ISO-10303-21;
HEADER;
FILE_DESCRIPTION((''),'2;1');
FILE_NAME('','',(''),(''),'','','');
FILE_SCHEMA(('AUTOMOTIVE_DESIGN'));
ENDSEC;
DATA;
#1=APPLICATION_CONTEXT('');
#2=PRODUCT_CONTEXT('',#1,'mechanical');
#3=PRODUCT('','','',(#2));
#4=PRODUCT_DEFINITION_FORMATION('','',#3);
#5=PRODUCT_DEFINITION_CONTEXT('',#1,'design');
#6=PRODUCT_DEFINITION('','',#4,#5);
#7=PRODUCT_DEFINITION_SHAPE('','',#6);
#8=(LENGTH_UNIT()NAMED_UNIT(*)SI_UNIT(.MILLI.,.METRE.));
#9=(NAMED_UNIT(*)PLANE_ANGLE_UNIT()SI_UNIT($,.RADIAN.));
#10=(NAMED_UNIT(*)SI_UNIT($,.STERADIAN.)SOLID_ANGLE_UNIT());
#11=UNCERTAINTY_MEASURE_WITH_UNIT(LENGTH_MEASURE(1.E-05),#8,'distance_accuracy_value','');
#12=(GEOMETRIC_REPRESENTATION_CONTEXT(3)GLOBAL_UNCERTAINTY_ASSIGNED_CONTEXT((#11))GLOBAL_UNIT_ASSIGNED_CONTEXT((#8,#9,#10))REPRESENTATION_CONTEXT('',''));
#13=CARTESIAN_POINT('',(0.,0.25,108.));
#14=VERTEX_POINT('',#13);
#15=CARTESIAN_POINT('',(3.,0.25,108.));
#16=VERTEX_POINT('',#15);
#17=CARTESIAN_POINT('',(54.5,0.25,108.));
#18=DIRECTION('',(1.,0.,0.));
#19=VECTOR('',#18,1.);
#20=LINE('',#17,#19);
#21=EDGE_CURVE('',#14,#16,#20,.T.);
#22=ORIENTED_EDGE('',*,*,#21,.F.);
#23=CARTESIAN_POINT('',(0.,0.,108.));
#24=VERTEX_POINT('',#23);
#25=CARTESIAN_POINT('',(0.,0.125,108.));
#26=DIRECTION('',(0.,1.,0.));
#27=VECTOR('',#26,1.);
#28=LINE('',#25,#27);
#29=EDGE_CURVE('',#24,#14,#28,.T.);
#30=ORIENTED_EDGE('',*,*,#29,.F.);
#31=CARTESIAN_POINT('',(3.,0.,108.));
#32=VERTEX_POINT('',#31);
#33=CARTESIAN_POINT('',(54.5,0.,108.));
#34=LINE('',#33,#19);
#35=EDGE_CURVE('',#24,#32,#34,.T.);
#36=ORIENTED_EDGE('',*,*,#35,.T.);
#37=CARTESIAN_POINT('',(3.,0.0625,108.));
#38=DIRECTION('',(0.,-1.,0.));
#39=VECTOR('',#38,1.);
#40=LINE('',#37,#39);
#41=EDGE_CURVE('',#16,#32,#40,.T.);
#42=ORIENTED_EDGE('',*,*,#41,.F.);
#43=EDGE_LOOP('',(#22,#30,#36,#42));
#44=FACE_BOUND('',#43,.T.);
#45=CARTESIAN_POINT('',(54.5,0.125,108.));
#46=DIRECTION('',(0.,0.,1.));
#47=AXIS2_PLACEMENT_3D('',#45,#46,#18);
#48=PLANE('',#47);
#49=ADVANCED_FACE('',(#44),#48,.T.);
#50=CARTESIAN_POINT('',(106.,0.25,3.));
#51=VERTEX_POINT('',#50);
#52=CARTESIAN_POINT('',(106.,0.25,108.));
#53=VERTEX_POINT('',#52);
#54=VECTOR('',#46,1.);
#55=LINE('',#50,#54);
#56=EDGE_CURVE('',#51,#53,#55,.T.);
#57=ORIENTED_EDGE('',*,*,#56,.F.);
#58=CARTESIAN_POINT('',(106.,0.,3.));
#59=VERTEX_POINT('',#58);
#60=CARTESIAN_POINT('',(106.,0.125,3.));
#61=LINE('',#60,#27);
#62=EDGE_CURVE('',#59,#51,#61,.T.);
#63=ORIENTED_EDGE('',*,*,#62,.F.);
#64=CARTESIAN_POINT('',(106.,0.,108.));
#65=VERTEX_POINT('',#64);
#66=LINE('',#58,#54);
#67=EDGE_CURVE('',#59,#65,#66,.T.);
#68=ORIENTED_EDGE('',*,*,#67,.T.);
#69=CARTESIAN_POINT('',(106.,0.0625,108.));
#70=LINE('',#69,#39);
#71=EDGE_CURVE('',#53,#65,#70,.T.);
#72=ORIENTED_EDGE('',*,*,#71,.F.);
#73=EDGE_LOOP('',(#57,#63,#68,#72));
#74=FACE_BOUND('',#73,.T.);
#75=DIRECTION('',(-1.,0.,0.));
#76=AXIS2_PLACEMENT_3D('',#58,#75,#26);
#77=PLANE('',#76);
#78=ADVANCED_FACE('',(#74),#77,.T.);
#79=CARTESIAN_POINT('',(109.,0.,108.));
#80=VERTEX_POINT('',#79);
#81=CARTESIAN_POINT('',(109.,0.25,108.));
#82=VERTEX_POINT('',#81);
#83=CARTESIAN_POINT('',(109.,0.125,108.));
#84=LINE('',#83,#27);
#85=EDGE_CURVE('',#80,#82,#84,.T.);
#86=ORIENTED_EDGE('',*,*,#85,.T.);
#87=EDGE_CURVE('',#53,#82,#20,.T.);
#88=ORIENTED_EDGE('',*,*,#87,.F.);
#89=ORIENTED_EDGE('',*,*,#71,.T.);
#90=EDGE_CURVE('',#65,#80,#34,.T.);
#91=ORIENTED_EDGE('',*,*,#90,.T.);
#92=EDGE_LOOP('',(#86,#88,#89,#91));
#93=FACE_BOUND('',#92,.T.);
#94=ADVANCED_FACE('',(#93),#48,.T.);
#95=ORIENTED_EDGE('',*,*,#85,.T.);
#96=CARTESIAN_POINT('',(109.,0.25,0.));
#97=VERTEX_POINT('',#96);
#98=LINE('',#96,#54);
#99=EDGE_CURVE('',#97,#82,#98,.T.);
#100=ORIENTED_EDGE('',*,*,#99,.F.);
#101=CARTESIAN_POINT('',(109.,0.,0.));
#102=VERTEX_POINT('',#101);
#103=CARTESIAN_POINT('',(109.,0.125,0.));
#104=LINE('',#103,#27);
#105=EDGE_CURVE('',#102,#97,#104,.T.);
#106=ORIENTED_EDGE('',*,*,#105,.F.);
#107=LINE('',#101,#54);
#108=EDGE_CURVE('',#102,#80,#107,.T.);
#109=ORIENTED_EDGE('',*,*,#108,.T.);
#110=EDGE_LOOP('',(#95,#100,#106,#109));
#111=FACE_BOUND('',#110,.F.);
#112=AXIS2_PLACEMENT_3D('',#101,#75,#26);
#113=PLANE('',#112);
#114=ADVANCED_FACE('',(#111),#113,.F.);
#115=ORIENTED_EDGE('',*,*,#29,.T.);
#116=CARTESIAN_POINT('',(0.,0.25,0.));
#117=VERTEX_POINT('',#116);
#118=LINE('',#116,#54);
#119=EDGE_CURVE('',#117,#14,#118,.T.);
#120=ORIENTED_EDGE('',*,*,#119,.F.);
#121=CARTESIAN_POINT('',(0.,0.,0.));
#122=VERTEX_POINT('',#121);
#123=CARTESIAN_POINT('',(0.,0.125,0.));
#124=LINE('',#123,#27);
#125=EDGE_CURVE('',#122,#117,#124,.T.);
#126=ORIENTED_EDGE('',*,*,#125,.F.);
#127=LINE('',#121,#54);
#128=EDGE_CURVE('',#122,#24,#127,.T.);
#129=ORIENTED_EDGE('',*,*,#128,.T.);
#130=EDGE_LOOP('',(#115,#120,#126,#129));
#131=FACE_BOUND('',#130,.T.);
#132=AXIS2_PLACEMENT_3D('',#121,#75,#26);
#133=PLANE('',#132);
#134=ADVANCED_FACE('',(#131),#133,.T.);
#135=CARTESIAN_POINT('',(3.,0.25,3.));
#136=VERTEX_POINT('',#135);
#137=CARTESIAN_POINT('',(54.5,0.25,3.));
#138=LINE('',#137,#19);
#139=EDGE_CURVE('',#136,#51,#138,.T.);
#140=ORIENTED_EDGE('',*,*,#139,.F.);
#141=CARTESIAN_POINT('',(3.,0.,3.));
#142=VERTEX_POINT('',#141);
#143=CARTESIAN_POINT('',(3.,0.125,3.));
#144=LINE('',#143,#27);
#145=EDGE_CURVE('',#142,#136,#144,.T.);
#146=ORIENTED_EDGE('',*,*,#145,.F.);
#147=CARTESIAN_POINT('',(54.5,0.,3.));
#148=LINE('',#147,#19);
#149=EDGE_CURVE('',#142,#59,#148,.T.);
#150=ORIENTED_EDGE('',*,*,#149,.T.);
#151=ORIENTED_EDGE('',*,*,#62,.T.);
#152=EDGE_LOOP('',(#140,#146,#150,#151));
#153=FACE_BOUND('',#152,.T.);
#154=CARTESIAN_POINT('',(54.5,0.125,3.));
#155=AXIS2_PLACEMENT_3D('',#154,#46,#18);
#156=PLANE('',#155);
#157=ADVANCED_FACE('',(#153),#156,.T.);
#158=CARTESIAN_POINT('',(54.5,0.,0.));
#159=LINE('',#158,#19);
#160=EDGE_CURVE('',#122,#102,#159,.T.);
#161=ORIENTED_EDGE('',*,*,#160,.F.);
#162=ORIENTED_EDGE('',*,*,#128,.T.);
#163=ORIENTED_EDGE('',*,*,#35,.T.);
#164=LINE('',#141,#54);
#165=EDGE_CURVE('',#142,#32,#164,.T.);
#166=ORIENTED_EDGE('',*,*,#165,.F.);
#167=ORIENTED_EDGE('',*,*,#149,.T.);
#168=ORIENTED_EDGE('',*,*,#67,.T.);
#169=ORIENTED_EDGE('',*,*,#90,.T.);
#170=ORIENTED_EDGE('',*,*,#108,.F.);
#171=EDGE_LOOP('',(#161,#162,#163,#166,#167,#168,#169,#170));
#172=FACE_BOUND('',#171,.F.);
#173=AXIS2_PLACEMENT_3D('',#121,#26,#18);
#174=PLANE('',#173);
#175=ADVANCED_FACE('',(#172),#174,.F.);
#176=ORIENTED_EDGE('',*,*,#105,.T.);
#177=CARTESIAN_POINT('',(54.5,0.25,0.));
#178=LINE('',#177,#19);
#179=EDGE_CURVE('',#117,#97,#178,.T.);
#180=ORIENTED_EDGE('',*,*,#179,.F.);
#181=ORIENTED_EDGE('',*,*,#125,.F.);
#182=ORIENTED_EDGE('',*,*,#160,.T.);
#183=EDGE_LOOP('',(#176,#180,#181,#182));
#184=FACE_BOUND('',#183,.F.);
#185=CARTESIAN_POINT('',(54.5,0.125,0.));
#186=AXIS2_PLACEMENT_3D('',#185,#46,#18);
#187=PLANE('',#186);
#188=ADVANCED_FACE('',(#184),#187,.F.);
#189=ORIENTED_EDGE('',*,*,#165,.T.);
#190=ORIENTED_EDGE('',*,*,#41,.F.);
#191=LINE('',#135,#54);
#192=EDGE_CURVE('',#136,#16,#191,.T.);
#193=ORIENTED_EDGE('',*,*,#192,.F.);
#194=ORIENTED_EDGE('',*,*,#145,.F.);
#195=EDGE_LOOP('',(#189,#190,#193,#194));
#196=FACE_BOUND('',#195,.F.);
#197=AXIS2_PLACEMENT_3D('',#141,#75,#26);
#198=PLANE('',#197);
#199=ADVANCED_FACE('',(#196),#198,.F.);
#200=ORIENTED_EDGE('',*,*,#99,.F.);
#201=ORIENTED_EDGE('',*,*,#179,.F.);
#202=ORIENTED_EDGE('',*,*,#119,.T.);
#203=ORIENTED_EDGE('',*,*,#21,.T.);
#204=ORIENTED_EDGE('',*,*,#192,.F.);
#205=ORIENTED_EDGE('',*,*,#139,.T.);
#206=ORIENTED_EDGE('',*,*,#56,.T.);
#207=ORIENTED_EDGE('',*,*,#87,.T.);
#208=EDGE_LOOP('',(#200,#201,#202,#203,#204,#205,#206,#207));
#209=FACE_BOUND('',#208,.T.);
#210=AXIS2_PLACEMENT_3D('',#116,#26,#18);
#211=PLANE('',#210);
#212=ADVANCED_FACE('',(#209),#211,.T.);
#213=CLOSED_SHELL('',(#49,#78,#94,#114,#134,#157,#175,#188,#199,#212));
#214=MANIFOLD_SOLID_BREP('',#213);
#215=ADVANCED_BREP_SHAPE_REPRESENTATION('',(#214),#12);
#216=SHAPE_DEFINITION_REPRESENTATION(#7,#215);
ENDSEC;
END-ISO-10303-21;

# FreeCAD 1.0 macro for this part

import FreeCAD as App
import Part
import Sketcher


def add_polygon(sketch, points):
    """Adds a closed chain of lines whose ends are joined by coincident constraints."""
    first, n = sketch.GeometryCount, len(points)
    for a, b in zip(points, points[1:] + points[:1]):
        sketch.addGeometry(Part.LineSegment(App.Vector(*a, 0), App.Vector(*b, 0)), False)
    for i in range(n):
        sketch.addConstraint(Sketcher.Constraint("Coincident", first + i, 2, first + (i + 1) % n, 1))

doc = App.newDocument("Part")
body = doc.addObject("PartDesign::Body", "Body")

sketch1 = body.newObject("Sketcher::SketchObject", "Sketch")
sketch1.AttachmentSupport = (doc.getObject("XY_Plane"), [""])
sketch1.MapMode = "FlatFace"
sketch1.AttachmentOffset = App.Placement(App.Vector(0, 0, 3), App.Rotation())
add_polygon(sketch1, [(3, 0.25), (3, 0), (106, 0), (106, 0.25)])
sketch1.addConstraint(Sketcher.Constraint("Vertical", 0))
sketch1.addConstraint(Sketcher.Constraint("Horizontal", 1))
sketch1.addConstraint(Sketcher.Constraint("Vertical", 2))
sketch1.addConstraint(Sketcher.Constraint("Horizontal", 3))
sketch1.addConstraint(Sketcher.Constraint("PointOnObject", 0, 2, -1))
sketch1.addConstraint(Sketcher.Constraint("DistanceX", 1, 1, 1, 2, 103.0))
sketch1.addConstraint(Sketcher.Constraint("DistanceX", -1, 1, 0, 2, 3.0))
sketch1.addConstraint(Sketcher.Constraint("DistanceY", 0, 2, 0, 1, 0.25))
pad1 = body.newObject("PartDesign::Pad", "Pad")
pad1.Profile = sketch1
pad1.Length = 106
body2 = doc.addObject("PartDesign::Body", "Body001")

sketch2 = body2.newObject("Sketcher::SketchObject", "Sketch001")
sketch2.AttachmentSupport = (doc.getObject("XY_Plane001"), [""])
sketch2.MapMode = "FlatFace"
add_polygon(sketch2, [(0, 0.25), (0, 0), (109, 0), (109, 0.25)])
sketch2.addConstraint(Sketcher.Constraint("Vertical", 0))
sketch2.addConstraint(Sketcher.Constraint("Horizontal", 1))
sketch2.addConstraint(Sketcher.Constraint("Vertical", 2))
sketch2.addConstraint(Sketcher.Constraint("Horizontal", 3))
sketch2.addConstraint(Sketcher.Constraint("Coincident", 0, 2, -1, 1))
sketch2.addConstraint(Sketcher.Constraint("DistanceX", 1, 1, 1, 2, 109.0))
sketch2.addConstraint(Sketcher.Constraint("DistanceY", 0, 2, 0, 1, 0.25))
pad2 = body2.newObject("PartDesign::Pad", "Pad001")
pad2.Profile = sketch2
pad2.Length = 108
doc.recompute()

boolean = body2.newObject("PartDesign::Boolean", "Boolean")
boolean.Type = "Cut"
boolean.addObjects([body])

doc.recompute()
